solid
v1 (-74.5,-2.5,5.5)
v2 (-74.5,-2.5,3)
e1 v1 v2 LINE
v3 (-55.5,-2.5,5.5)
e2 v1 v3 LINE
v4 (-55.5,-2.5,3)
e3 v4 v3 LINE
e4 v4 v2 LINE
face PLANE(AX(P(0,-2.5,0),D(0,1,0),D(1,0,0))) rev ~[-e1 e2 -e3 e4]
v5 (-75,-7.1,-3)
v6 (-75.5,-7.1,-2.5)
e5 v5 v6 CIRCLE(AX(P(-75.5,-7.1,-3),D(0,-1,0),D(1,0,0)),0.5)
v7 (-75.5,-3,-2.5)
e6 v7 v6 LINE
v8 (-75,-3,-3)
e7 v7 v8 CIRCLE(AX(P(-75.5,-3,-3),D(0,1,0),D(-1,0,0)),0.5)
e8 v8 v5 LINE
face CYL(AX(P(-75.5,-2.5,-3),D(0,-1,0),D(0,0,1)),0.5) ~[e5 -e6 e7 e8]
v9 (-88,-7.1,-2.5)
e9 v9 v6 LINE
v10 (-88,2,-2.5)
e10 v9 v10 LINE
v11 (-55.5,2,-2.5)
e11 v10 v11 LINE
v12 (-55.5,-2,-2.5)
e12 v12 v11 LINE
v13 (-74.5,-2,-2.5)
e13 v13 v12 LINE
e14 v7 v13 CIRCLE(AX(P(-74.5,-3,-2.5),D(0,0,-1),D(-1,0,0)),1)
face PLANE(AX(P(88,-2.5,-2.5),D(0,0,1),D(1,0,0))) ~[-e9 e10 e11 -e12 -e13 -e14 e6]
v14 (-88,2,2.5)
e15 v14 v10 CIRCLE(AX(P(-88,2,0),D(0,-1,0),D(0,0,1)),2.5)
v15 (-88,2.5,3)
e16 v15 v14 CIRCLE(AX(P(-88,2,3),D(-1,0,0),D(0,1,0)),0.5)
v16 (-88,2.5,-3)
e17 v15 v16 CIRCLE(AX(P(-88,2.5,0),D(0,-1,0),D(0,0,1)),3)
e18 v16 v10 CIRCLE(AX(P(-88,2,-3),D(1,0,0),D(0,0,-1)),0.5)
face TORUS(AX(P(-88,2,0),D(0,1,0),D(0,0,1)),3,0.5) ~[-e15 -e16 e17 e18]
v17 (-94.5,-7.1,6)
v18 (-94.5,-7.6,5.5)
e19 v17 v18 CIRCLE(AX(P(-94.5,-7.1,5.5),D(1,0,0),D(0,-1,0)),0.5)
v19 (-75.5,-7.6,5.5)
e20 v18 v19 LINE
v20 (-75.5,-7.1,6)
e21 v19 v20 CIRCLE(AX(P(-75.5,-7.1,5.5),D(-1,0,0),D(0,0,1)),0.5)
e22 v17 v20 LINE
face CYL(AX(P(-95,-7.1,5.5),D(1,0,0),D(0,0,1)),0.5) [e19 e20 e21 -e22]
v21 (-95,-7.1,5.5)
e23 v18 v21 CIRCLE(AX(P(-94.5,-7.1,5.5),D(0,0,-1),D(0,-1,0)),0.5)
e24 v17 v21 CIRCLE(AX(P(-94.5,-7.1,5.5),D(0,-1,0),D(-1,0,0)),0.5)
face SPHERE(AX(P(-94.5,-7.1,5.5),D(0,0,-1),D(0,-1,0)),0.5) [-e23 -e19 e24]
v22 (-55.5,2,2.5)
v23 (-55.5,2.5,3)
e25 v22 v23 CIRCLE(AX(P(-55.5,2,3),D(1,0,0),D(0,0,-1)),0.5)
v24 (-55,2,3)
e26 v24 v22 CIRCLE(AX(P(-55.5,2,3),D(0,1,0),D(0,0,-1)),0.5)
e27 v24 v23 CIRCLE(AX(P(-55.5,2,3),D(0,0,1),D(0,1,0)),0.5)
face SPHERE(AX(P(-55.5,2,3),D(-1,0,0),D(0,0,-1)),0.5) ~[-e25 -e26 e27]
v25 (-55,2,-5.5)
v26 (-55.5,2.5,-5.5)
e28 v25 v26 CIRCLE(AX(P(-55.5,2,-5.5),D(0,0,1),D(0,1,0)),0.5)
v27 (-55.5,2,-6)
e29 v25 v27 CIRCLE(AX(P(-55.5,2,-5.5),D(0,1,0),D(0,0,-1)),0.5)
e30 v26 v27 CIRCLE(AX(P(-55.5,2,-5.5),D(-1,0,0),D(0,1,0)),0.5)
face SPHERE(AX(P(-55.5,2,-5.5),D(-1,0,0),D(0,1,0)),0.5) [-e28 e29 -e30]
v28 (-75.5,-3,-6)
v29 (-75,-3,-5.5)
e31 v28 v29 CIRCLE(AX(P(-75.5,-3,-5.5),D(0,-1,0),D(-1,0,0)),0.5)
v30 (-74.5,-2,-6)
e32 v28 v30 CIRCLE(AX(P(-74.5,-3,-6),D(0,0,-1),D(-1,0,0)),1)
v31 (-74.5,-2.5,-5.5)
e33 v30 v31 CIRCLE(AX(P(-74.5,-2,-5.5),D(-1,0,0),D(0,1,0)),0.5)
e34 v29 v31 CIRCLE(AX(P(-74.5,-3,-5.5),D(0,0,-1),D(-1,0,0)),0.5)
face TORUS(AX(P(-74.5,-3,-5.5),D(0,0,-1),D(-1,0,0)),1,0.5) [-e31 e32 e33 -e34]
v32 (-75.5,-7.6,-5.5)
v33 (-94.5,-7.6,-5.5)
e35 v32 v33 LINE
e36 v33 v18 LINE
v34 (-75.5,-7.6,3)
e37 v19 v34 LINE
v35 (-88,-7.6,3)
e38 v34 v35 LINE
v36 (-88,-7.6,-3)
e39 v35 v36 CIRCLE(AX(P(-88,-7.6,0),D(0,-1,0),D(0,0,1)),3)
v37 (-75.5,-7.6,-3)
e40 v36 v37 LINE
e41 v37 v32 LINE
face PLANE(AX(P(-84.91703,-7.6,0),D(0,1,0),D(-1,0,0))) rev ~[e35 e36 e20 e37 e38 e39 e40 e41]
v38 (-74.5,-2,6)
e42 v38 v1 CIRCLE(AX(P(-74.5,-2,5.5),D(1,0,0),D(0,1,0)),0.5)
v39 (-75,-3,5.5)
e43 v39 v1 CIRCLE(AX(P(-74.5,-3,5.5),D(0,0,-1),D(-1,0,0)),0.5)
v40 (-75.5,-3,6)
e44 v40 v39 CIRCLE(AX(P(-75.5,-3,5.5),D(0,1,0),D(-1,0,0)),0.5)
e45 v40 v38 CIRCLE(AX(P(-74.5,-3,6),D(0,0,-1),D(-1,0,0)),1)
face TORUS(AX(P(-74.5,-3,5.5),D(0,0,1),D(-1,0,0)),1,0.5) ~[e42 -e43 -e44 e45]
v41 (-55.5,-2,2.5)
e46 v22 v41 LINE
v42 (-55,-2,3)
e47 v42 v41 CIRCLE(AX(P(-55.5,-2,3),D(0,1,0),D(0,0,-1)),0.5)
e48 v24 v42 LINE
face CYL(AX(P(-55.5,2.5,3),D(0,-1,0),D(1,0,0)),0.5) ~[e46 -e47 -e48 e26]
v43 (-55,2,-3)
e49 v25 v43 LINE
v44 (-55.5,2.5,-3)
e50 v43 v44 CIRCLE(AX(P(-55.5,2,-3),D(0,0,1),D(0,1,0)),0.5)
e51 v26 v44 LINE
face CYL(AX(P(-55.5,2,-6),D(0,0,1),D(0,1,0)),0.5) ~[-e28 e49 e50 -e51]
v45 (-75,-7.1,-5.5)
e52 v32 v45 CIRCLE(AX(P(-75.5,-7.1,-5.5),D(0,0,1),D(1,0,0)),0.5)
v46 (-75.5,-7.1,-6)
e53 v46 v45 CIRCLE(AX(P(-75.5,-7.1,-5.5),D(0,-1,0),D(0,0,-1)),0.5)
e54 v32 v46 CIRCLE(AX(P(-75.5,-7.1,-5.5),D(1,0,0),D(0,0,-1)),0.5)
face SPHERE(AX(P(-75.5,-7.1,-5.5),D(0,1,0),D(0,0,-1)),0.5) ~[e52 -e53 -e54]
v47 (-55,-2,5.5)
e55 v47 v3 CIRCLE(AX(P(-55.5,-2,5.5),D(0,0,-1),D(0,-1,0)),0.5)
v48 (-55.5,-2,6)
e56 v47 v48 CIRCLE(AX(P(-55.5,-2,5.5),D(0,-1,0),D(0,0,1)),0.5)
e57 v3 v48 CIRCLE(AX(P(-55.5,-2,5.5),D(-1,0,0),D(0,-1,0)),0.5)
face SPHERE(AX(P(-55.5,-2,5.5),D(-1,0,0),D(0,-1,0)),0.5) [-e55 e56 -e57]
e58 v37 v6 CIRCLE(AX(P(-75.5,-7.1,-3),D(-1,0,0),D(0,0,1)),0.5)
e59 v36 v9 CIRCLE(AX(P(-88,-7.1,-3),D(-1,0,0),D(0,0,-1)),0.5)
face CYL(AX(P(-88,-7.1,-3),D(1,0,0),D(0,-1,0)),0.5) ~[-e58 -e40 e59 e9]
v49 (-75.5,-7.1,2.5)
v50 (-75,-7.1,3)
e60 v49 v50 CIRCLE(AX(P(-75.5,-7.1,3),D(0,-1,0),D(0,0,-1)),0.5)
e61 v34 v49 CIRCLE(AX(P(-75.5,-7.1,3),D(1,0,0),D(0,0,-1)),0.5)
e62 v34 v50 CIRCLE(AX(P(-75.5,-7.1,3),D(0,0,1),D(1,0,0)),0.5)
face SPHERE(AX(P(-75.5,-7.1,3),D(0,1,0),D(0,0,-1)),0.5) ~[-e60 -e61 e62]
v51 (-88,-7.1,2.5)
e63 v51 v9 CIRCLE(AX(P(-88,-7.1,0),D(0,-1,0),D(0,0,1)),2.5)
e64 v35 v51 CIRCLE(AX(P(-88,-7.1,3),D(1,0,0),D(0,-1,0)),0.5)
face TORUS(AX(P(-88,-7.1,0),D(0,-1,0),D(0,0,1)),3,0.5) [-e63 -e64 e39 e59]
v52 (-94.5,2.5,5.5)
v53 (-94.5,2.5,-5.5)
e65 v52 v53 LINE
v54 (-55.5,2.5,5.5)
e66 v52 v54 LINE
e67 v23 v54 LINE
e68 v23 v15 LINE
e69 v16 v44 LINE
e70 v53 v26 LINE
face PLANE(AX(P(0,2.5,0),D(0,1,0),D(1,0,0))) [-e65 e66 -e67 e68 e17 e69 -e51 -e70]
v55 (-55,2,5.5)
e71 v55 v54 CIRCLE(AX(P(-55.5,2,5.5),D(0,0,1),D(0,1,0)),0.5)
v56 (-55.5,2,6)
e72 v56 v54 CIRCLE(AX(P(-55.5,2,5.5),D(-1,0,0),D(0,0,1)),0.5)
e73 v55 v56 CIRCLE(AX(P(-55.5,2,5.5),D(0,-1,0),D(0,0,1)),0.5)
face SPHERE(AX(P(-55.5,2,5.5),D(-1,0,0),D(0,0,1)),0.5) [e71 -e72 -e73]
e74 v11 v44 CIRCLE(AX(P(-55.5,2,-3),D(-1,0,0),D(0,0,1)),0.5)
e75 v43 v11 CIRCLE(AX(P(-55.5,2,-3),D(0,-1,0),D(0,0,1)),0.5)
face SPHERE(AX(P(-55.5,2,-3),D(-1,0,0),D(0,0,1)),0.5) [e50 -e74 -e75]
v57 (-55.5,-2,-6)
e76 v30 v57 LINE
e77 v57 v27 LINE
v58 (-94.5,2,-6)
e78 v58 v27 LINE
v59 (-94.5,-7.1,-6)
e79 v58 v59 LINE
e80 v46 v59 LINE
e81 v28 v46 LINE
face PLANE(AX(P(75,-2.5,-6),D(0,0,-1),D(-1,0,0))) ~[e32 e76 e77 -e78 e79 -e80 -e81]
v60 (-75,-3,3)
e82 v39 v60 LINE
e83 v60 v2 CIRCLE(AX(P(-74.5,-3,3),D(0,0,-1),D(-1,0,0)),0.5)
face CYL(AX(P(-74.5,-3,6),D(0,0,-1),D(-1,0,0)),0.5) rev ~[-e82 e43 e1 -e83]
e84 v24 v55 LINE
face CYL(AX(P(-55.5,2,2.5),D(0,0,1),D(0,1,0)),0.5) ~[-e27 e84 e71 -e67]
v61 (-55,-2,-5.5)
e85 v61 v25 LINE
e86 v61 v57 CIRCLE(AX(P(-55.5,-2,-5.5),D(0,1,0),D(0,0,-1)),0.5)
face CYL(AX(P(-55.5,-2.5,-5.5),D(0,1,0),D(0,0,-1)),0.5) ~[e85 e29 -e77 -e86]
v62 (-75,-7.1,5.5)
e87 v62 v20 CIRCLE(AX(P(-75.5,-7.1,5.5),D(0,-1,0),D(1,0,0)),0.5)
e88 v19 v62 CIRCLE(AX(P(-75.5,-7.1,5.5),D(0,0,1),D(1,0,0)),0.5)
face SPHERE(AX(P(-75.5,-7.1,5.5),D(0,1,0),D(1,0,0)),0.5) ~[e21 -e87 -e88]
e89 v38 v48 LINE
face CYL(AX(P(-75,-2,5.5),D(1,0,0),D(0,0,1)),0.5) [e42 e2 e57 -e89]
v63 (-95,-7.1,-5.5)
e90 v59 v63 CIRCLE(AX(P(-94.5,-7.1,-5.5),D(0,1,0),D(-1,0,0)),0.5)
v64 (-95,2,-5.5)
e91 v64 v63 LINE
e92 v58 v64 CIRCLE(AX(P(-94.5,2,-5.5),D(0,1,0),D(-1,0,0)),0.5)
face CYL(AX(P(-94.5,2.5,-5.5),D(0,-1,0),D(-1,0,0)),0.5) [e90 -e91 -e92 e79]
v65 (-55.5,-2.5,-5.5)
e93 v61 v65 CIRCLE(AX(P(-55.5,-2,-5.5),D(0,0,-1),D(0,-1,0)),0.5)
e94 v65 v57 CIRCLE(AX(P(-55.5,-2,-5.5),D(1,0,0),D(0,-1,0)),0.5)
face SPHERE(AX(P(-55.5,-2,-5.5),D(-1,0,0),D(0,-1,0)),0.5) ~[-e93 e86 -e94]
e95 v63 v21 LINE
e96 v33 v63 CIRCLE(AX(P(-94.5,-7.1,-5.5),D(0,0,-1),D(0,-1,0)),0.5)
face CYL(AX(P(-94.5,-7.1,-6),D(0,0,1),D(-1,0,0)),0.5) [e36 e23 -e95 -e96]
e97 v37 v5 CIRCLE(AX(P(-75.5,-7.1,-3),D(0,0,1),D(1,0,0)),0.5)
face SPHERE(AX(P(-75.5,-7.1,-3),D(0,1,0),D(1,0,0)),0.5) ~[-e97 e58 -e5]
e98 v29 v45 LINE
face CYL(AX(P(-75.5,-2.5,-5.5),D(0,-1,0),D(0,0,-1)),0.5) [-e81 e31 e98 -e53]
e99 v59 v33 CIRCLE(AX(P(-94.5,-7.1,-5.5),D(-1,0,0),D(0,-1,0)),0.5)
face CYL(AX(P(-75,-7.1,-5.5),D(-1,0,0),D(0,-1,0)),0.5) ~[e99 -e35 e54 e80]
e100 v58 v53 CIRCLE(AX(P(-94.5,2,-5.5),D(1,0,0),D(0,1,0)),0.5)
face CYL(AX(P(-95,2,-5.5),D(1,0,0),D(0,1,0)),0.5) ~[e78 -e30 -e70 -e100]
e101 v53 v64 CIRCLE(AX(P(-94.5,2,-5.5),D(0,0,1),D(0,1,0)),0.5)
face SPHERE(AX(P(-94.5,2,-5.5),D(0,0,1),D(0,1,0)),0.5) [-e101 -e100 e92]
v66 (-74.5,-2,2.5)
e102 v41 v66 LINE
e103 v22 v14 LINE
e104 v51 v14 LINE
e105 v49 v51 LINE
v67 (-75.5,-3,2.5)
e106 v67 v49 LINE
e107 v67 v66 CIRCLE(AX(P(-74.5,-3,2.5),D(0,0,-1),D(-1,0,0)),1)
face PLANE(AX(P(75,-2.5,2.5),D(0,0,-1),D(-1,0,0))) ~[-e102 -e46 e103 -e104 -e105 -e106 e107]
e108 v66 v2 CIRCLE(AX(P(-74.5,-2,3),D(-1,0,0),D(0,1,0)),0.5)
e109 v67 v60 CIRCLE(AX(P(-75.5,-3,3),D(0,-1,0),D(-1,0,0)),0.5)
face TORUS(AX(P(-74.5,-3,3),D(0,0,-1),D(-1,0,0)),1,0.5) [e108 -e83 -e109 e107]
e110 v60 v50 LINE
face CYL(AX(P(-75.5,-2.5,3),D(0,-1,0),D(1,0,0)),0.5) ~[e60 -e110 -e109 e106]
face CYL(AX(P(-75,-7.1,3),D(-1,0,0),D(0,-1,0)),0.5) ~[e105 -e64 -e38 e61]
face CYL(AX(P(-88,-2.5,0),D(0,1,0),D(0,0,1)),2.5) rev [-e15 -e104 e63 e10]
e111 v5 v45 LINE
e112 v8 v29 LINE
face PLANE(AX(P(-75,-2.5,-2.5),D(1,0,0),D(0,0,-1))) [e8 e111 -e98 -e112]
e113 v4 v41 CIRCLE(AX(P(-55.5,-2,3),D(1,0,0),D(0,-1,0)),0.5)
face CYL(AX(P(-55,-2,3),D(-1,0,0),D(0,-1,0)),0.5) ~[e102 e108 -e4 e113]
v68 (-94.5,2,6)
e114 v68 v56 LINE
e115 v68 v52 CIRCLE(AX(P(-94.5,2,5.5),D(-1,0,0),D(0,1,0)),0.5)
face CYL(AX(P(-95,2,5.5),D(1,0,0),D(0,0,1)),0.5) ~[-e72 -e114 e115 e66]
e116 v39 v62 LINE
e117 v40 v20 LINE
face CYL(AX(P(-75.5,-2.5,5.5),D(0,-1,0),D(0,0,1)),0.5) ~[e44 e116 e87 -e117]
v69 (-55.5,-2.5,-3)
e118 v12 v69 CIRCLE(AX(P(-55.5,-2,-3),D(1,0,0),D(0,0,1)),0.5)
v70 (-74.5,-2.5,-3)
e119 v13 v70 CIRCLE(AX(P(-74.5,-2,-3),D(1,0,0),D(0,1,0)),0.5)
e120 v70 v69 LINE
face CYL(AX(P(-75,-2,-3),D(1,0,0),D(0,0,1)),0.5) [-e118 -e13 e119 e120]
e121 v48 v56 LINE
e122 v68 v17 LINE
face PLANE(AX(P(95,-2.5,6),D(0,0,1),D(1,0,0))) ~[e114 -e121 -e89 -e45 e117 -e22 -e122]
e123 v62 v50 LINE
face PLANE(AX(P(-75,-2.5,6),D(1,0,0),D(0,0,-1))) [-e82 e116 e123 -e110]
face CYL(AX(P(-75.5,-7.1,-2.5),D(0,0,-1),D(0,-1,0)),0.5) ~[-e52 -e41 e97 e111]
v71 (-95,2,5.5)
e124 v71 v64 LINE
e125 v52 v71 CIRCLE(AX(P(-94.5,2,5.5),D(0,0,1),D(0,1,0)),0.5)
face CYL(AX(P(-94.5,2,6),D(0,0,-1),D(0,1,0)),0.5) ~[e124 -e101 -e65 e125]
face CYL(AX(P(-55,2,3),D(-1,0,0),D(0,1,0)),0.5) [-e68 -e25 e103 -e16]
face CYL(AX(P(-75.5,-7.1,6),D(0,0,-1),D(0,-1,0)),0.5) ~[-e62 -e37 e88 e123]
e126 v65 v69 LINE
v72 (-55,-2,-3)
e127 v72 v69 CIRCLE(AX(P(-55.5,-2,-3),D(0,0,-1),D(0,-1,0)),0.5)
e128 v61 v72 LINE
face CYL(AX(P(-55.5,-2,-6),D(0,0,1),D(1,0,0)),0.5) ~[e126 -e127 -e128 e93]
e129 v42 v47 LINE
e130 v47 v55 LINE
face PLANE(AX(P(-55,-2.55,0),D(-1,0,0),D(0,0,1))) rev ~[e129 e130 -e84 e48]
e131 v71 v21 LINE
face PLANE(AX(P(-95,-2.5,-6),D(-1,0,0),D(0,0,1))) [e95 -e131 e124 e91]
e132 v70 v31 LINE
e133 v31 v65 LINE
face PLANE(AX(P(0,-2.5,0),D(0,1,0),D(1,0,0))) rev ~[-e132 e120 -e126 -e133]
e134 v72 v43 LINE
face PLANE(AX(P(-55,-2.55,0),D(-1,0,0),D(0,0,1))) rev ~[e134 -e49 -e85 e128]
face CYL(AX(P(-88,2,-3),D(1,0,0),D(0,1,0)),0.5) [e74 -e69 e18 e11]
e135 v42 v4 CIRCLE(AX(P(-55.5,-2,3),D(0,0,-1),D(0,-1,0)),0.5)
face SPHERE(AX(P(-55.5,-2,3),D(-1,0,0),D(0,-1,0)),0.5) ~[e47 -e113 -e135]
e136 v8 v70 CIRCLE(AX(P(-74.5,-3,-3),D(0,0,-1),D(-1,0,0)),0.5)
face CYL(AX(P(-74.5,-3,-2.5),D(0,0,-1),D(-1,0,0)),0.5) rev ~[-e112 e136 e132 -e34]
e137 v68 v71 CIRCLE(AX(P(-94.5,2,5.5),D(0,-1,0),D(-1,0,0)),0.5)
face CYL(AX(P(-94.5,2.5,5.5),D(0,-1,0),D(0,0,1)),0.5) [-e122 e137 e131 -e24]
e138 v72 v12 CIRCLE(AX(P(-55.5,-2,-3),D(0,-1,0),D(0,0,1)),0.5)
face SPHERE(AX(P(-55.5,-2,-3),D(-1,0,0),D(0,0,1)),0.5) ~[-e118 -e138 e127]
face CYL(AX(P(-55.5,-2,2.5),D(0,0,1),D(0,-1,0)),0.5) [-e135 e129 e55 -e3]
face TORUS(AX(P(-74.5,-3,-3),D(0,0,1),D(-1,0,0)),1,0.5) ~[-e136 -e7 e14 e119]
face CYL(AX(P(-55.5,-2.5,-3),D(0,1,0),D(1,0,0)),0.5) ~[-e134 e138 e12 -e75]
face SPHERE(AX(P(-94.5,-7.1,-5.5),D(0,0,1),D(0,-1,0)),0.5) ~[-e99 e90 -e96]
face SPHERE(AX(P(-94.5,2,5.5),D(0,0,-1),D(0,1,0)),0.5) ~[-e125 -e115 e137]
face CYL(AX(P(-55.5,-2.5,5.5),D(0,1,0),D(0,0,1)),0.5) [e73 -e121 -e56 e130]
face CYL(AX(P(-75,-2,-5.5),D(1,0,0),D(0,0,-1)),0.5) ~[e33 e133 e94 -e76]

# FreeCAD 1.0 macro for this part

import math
import FreeCAD as App
import Part
import Sketcher

V = App.Vector
Q = App.Units.Quantity


def add_polygon(sketch, points):
    """Adds a closed chain of lines whose ends are joined by coincident constraints."""
    first, n = sketch.GeometryCount, len(points)
    for a, b in zip(points, points[1:] + points[:1]):
        sketch.addGeometry(Part.LineSegment(App.Vector(*a, 0), App.Vector(*b, 0)), False)
    for i in range(n):
        sketch.addConstraint(Sketcher.Constraint("Coincident", first + i, 2, first + (i + 1) % n, 1))

doc = App.newDocument("Part")
body = doc.addObject("PartDesign::Body", "Body")

# Sketch on XZ plane
sketch1 = body.newObject("Sketcher::SketchObject", "Sketch")
sketch1.AttachmentSupport = (doc.getObject("XZ_Plane"), [""])
sketch1.MapMode = "FlatFace"
add_polygon(sketch1, [(-95, -6), (-95, 6), (95, 6), (95, -6)])  # lines 0-3
sketch1.addGeometry(Part.ArcOfCircle(Part.Circle(V(-88, 0, 0), V(0, 0, 1), 2.5), math.radians(90), math.radians(270)), False)  # 4
sketch1.addGeometry(Part.LineSegment(V(-88, -2.5, 0), V(88, -2.5, 0)), False)  # 5
sketch1.addGeometry(Part.ArcOfCircle(Part.Circle(V(88, 0, 0), V(0, 0, 1), 2.5), math.radians(-90), math.radians(90)), False)  # 6
sketch1.addGeometry(Part.LineSegment(V(88, 2.5, 0), V(-88, 2.5, 0)), False)  # 7
sketch1.addConstraint([
    Sketcher.Constraint("Tangent", 4, 2, 5, 1),
    Sketcher.Constraint("Tangent", 5, 2, 6, 1),
    Sketcher.Constraint("Tangent", 6, 2, 7, 1),
    Sketcher.Constraint("Tangent", 7, 2, 4, 1),
    Sketcher.Constraint("Vertical", 0),
    Sketcher.Constraint("Horizontal", 1),
    Sketcher.Constraint("Vertical", 2),
    Sketcher.Constraint("Horizontal", 3),
    Sketcher.Constraint("Horizontal", 5),
    Sketcher.Constraint("Horizontal", 7),
    Sketcher.Constraint("Symmetric", 4, 3, 6, 3, -1, 1),
    Sketcher.Constraint("Symmetric", 0, 2, 2, 2, -1, 1),
    Sketcher.Constraint("Radius", 4, Q("2.5 mm")),
    Sketcher.Constraint("DistanceX", 1, 1, 1, 2, Q("190 mm")),
    Sketcher.Constraint("DistanceX", 5, 1, 5, 2, Q("176 mm")),
    Sketcher.Constraint("DistanceY", 0, 1, 0, 2, Q("12 mm")),
])
pad1 = body.newObject("PartDesign::Pad", "Pad")
pad1.Profile = sketch1
pad1.Length = 5
pad1.Midplane = True

# Sketch on XZ plane
sketch2 = body.newObject("Sketcher::SketchObject", "Sketch001")
sketch2.AttachmentSupport = (doc.getObject("XZ_Plane"), [""])
sketch2.MapMode = "FlatFace"
sketch2.AttachmentOffset = App.Placement(V(0, 0, 2.5), App.Rotation())
sketch2.addGeometry([
    Part.LineSegment(V(-75, 6, 0), V(-95, 6, 0)),  # 0
    Part.LineSegment(V(-95, 6, 0), V(-95, -6, 0)),  # 1
    Part.LineSegment(V(-95, -6, 0), V(-75, -6, 0)),  # 2
    Part.LineSegment(V(-75, -6, 0), V(-75, -2.5, 0)),  # 3
    Part.LineSegment(V(-75, -2.5, 0), V(-88, -2.5, 0)),  # 4
    Part.ArcOfCircle(Part.Circle(V(-88, 0, 0), V(0, 0, 1), 2.5), math.radians(90), math.radians(270)),  # 5
    Part.LineSegment(V(-88, 2.5, 0), V(-75, 2.5, 0)),  # 6
    Part.LineSegment(V(-75, 2.5, 0), V(-75, 6, 0)),  # 7
], False)
sketch2.addConstraint([
    Sketcher.Constraint("Coincident", 0, 2, 1, 1),
    Sketcher.Constraint("Coincident", 1, 2, 2, 1),
    Sketcher.Constraint("Coincident", 2, 2, 3, 1),
    Sketcher.Constraint("Coincident", 3, 2, 4, 1),
    Sketcher.Constraint("Tangent", 4, 2, 5, 2),
    Sketcher.Constraint("Tangent", 5, 1, 6, 1),
    Sketcher.Constraint("Coincident", 6, 2, 7, 1),
    Sketcher.Constraint("Coincident", 7, 2, 0, 1),
    Sketcher.Constraint("Horizontal", 0),
    Sketcher.Constraint("Vertical", 1),
    Sketcher.Constraint("Horizontal", 2),
    Sketcher.Constraint("Vertical", 3),
    Sketcher.Constraint("Horizontal", 4),
    Sketcher.Constraint("Horizontal", 6),
    Sketcher.Constraint("Vertical", 7),
    Sketcher.Constraint("Symmetric", 3, 2, 6, 2, -1),
    Sketcher.Constraint("Equal", 3, 7),
    Sketcher.Constraint("Radius", 5, Q("2.5 mm")),
    Sketcher.Constraint("DistanceX", 0, 2, 0, 1, Q("20 mm")),
    Sketcher.Constraint("DistanceX", 4, 2, 4, 1, Q("13 mm")),
    Sketcher.Constraint("DistanceY", 1, 2, 1, 1, Q("12 mm")),
    Sketcher.Constraint("DistanceX", 5, 3, -1, 1, Q("88 mm")),
])
pad2 = body.newObject("PartDesign::Pad", "Pad001")
pad2.Profile = sketch2
pad2.Length = 5.1
doc.recompute()

mirrored = body.newObject("PartDesign::Mirrored", "Mirrored")
mirrored.Originals = [pad2]
mirrored.MirrorPlane = (doc.getObject("YZ_Plane"), [""])
body.Tip = mirrored

# Sketch on YZ plane
sketch3 = body.newObject("Sketcher::SketchObject", "Sketch002")
sketch3.AttachmentSupport = (doc.getObject("YZ_Plane"), [""])
sketch3.MapMode = "FlatFace"
sketch3.AttachmentOffset = App.Placement(V(0, 0, -55), App.Rotation())
add_polygon(sketch3, [(2, -6), (-8, -6), (-8, 6), (2, 6)])  # lines 0-3
sketch3.addConstraint([
    Sketcher.Constraint("Horizontal", 0),
    Sketcher.Constraint("Vertical", 1),
    Sketcher.Constraint("Horizontal", 2),
    Sketcher.Constraint("Vertical", 3),
    Sketcher.Constraint("DistanceY", 1, 1, 1, 2, Q("12 mm")),
    Sketcher.Constraint("DistanceX", 0, 2, 0, 1, Q("10.1 mm")),
    Sketcher.Constraint("DistanceY", 0, 2, -1, 1, Q("6 mm")),
    Sketcher.Constraint("DistanceX", 0, 2, -1, 1, Q("7.6 mm")),
])
pocket1 = body.newObject("PartDesign::Pocket", "Pocket")
pocket1.Profile = sketch3
pocket1.Type = "ThroughAll"
pocket1.Reversed = True
doc.recompute()

fillet = body.newObject("PartDesign::Fillet", "Fillet")
fillet.Base = (pocket1, ["Edge1"])
fillet.UseAllEdges = True
fillet.Radius = 0.5

doc.recompute()
